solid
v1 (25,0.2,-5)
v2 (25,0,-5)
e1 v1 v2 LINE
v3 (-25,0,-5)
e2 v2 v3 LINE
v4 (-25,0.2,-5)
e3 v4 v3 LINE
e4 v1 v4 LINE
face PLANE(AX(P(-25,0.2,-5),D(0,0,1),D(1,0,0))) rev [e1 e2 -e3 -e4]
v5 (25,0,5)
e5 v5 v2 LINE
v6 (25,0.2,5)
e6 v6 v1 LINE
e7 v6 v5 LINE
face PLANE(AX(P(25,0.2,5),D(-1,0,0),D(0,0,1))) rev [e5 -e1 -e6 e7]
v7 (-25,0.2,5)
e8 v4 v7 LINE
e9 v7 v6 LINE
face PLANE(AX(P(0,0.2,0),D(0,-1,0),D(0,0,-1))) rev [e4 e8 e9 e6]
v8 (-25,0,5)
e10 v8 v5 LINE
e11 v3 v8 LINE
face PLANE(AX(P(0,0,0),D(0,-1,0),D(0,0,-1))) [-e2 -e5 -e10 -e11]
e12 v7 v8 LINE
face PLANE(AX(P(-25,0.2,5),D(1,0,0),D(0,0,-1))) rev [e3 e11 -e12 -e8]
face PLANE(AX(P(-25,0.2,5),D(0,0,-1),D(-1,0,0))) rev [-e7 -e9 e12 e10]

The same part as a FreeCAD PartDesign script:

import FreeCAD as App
import Part
import Sketcher
from FreeCAD import Vector

doc = App.newDocument("Part")
body = doc.addObject("PartDesign::Body", "Body")

# Sketch on XZ plane
sketch1 = body.newObject("Sketcher::SketchObject", "Sketch")
sketch1.AttachmentSupport = (doc.getObject("XZ_Plane"), [""])
sketch1.MapMode = "FlatFace"
sketch1.addGeometry(Part.LineSegment(Vector(-25, -5, 0), Vector(-25, 5, 0)), False)
sketch1.addGeometry(Part.LineSegment(Vector(-25, 5, 0), Vector(25, 5, 0)), False)
sketch1.addGeometry(Part.LineSegment(Vector(25, 5, 0), Vector(25, -5, 0)), False)
sketch1.addGeometry(Part.LineSegment(Vector(25, -5, 0), Vector(-25, -5, 0)), False)
sketch1.addConstraint(Sketcher.Constraint("Coincident", 0, 2, 1, 1))
sketch1.addConstraint(Sketcher.Constraint("Coincident", 1, 2, 2, 1))
sketch1.addConstraint(Sketcher.Constraint("Coincident", 2, 2, 3, 1))
sketch1.addConstraint(Sketcher.Constraint("Coincident", 3, 2, 0, 1))
sketch1.addConstraint(Sketcher.Constraint("Vertical", 0))
sketch1.addConstraint(Sketcher.Constraint("Horizontal", 1))
sketch1.addConstraint(Sketcher.Constraint("Vertical", 2))
sketch1.addConstraint(Sketcher.Constraint("Horizontal", 3))
sketch1.addConstraint(Sketcher.Constraint("Symmetric", 0, 2, 2, 2, -1, 1))
sketch1.addConstraint(Sketcher.Constraint("DistanceX", 1, 1, 1, 2, 50.0))
sketch1.addConstraint(Sketcher.Constraint("DistanceY", 0, 1, 0, 2, 10.0))
pad1 = body.newObject("PartDesign::Pad", "Pad")
pad1.Profile = sketch1
pad1.Length = 0.2
pad1.Reversed = True

doc.recompute()
